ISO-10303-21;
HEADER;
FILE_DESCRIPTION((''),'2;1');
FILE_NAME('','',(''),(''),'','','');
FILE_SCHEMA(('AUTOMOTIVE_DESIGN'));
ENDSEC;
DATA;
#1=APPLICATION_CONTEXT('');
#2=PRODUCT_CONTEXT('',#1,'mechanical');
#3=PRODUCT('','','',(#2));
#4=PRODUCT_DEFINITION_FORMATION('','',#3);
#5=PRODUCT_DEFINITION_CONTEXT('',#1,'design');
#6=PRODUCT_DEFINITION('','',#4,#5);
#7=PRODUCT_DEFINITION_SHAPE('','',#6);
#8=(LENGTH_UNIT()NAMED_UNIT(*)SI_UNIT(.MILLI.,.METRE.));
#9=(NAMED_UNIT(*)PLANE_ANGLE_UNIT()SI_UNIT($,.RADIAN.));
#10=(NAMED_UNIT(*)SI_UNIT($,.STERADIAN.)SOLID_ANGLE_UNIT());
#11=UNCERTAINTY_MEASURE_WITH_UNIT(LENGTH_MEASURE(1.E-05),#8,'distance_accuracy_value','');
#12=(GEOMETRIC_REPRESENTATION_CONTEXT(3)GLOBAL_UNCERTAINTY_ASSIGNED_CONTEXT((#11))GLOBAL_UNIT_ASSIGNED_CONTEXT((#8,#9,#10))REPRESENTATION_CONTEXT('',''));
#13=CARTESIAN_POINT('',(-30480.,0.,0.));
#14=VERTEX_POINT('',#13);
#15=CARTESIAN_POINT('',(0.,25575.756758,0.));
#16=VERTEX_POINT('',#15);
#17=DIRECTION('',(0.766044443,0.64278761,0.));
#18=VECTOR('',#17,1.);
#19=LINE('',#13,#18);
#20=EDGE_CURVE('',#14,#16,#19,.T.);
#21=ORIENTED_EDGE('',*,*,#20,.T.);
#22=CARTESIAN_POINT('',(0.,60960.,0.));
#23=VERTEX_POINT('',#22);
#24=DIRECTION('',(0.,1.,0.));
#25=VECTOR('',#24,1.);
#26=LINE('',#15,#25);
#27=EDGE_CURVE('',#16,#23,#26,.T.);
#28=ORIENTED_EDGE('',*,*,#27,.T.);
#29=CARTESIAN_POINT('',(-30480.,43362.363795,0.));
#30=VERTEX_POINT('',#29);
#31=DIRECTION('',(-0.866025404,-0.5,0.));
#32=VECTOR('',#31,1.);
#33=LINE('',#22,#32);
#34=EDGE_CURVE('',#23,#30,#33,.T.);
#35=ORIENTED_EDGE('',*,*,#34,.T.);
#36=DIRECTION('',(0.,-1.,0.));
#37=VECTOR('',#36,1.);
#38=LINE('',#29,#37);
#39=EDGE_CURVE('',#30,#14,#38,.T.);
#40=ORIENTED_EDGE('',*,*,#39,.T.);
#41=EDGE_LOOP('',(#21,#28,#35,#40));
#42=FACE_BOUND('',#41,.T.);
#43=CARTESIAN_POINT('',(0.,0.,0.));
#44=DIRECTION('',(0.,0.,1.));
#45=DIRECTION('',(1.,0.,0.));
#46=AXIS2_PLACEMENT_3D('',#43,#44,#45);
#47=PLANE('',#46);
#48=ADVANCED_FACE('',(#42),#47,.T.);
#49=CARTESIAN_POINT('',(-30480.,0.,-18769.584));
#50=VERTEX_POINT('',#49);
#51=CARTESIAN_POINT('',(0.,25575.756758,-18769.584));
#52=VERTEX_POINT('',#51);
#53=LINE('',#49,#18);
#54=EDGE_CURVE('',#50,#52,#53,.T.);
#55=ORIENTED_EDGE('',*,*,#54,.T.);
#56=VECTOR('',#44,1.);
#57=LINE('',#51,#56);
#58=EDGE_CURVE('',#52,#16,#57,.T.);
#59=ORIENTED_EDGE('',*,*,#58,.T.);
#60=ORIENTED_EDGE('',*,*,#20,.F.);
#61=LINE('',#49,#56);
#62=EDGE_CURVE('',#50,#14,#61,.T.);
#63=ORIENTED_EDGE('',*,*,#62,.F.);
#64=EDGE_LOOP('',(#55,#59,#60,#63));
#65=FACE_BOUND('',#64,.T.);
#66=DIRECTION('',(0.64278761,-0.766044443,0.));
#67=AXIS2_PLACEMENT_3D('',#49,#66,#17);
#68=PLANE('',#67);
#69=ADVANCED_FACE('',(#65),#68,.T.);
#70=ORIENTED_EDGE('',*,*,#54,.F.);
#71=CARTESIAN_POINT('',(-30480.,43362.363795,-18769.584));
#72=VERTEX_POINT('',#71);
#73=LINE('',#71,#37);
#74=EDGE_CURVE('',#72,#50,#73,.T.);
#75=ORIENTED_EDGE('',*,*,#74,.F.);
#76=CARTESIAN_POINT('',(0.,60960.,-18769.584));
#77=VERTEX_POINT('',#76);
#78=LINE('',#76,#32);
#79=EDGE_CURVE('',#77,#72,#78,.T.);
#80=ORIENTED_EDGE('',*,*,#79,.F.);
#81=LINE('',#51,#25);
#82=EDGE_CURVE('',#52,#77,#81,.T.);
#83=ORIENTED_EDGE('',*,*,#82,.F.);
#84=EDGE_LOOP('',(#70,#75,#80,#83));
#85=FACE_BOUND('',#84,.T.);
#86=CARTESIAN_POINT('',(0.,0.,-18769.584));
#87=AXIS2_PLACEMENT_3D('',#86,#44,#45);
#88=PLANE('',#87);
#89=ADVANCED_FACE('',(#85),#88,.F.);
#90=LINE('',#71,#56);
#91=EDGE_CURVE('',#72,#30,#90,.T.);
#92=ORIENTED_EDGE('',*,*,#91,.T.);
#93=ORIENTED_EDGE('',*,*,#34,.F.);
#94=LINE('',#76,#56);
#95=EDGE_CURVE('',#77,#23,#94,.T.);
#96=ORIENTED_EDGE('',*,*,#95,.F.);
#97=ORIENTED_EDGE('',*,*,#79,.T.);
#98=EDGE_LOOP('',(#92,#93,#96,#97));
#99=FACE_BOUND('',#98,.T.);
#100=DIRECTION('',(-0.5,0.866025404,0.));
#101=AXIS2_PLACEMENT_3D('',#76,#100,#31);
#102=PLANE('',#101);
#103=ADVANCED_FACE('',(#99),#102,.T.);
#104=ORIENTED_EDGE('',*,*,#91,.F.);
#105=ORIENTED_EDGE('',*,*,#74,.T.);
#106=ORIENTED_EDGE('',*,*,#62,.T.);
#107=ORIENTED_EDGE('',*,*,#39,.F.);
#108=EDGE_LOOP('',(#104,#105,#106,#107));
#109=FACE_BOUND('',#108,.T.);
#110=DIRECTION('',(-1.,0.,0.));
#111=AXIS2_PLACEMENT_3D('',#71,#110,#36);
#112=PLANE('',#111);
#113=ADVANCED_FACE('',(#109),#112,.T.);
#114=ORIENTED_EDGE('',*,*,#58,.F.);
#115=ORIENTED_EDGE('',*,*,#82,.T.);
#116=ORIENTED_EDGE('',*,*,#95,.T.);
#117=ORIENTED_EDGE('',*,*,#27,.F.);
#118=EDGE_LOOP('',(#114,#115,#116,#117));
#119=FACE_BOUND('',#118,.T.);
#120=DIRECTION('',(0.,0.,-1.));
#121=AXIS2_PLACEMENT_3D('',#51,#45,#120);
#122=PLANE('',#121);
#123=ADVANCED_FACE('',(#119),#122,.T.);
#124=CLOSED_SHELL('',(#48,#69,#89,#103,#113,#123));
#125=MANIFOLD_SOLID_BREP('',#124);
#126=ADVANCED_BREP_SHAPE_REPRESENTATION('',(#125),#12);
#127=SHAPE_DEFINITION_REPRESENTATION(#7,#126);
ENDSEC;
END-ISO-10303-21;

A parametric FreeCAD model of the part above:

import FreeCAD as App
import Part
import Sketcher

V = App.Vector
Q = App.Units.Quantity


def add_polygon(sketch, points):
    """Adds a closed chain of lines whose ends are joined by coincident constraints."""
    first, n = sketch.GeometryCount, len(points)
    for a, b in zip(points, points[1:] + points[:1]):
        sketch.addGeometry(Part.LineSegment(App.Vector(*a, 0), App.Vector(*b, 0)), False)
    for i in range(n):
        sketch.addConstraint(Sketcher.Constraint("Coincident", first + i, 2, first + (i + 1) % n, 1))

doc = App.newDocument("Part")
body = doc.addObject("PartDesign::Body", "Body")

sketch1 = doc.addObject("Sketcher::SketchObject", "Sketch")
body.addObject(sketch1)
sketch1.AttachmentSupport = (doc.XY_Plane, [""])
sketch1.MapMode = "FlatFace"
add_polygon(sketch1, [(0, 25576), (0, 60960), (-30480, 43362), (-30480, 0)])
sketch1.addConstraint([
    Sketcher.Constraint("Vertical", 0),
    Sketcher.Constraint("Vertical", 2),
    Sketcher.Constraint("PointOnObject", 0, 2, -2),
    Sketcher.Constraint("PointOnObject", 2, 2, -1),
    Sketcher.Constraint("DistanceY", -1, 1, 0, 2, Q("2400 in")),
    Sketcher.Constraint("DistanceX", 1, 2, -1, 1, Q("1200 in")),
    Sketcher.Constraint("Angle", 1, Q("-150 deg")),
    Sketcher.Constraint("Angle", 3, Q("40 deg")),
])
pad1 = doc.addObject("PartDesign::Pad", "Pad")
body.addObject(pad1)
pad1.Profile = sketch1
pad1.Length = Q("738.96 in")
pad1.Reversed = True

doc.recompute()
